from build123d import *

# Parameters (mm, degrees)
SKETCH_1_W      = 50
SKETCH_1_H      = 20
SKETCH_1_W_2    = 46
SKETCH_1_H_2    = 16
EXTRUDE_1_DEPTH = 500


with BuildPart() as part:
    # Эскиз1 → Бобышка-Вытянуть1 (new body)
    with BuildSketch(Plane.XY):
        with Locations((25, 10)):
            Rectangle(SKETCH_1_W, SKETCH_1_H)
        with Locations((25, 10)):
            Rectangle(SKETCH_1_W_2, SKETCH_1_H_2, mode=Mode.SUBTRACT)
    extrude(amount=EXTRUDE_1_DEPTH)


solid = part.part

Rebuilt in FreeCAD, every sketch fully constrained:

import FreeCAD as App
import Part
import Sketcher
from FreeCAD import Vector

doc = App.newDocument("Part")
body = doc.addObject("PartDesign::Body", "Body")

sketch1 = body.newObject("Sketcher::SketchObject", "Sketch")
sketch1.AttachmentSupport = (doc.getObject("XY_Plane"), [""])
sketch1.MapMode = "FlatFace"
sketch1.addGeometry([
    Part.LineSegment(Vector(0, 20, 0), Vector(0, 0, 0)),
    Part.LineSegment(Vector(0, 0, 0), Vector(50, 0, 0)),
    Part.LineSegment(Vector(50, 0, 0), Vector(50, 20, 0)),
    Part.LineSegment(Vector(50, 20, 0), Vector(0, 20, 0)),
    Part.LineSegment(Vector(48, 2, 0), Vector(2, 2, 0)),
    Part.LineSegment(Vector(2, 2, 0), Vector(2, 18, 0)),
    Part.LineSegment(Vector(2, 18, 0), Vector(48, 18, 0)),
    Part.LineSegment(Vector(48, 18, 0), Vector(48, 2, 0)),
], False)
sketch1.addConstraint([
    Sketcher.Constraint("Coincident", 0, 2, 1, 1),
    Sketcher.Constraint("Coincident", 1, 2, 2, 1),
    Sketcher.Constraint("Coincident", 2, 2, 3, 1),
    Sketcher.Constraint("Coincident", 3, 2, 0, 1),
    Sketcher.Constraint("Coincident", 4, 2, 5, 1),
    Sketcher.Constraint("Coincident", 5, 2, 6, 1),
    Sketcher.Constraint("Coincident", 6, 2, 7, 1),
    Sketcher.Constraint("Coincident", 7, 2, 4, 1),
    Sketcher.Constraint("Vertical", 0),
    Sketcher.Constraint("Horizontal", 1),
    Sketcher.Constraint("Vertical", 2),
    Sketcher.Constraint("Horizontal", 3),
    Sketcher.Constraint("Horizontal", 4),
    Sketcher.Constraint("Vertical", 5),
    Sketcher.Constraint("Horizontal", 6),
    Sketcher.Constraint("Vertical", 7),
    Sketcher.Constraint("Coincident", 0, 2, -1, 1),
    Sketcher.Constraint("DistanceX", 1, 1, 1, 2, 50.0),
    Sketcher.Constraint("DistanceX", 4, 2, 4, 1, 46.0),
    Sketcher.Constraint("DistanceY", 0, 2, 0, 1, 20.0),
    Sketcher.Constraint("DistanceY", 5, 1, 5, 2, 16.0),
    Sketcher.Constraint("DistanceX", -1, 1, 4, 2, 2.0),
    Sketcher.Constraint("DistanceY", -1, 1, 4, 2, 2.0),
])
pad1 = body.newObject("PartDesign::Pad", "Pad")
pad1.Profile = sketch1
pad1.Length = 500

doc.recompute()
